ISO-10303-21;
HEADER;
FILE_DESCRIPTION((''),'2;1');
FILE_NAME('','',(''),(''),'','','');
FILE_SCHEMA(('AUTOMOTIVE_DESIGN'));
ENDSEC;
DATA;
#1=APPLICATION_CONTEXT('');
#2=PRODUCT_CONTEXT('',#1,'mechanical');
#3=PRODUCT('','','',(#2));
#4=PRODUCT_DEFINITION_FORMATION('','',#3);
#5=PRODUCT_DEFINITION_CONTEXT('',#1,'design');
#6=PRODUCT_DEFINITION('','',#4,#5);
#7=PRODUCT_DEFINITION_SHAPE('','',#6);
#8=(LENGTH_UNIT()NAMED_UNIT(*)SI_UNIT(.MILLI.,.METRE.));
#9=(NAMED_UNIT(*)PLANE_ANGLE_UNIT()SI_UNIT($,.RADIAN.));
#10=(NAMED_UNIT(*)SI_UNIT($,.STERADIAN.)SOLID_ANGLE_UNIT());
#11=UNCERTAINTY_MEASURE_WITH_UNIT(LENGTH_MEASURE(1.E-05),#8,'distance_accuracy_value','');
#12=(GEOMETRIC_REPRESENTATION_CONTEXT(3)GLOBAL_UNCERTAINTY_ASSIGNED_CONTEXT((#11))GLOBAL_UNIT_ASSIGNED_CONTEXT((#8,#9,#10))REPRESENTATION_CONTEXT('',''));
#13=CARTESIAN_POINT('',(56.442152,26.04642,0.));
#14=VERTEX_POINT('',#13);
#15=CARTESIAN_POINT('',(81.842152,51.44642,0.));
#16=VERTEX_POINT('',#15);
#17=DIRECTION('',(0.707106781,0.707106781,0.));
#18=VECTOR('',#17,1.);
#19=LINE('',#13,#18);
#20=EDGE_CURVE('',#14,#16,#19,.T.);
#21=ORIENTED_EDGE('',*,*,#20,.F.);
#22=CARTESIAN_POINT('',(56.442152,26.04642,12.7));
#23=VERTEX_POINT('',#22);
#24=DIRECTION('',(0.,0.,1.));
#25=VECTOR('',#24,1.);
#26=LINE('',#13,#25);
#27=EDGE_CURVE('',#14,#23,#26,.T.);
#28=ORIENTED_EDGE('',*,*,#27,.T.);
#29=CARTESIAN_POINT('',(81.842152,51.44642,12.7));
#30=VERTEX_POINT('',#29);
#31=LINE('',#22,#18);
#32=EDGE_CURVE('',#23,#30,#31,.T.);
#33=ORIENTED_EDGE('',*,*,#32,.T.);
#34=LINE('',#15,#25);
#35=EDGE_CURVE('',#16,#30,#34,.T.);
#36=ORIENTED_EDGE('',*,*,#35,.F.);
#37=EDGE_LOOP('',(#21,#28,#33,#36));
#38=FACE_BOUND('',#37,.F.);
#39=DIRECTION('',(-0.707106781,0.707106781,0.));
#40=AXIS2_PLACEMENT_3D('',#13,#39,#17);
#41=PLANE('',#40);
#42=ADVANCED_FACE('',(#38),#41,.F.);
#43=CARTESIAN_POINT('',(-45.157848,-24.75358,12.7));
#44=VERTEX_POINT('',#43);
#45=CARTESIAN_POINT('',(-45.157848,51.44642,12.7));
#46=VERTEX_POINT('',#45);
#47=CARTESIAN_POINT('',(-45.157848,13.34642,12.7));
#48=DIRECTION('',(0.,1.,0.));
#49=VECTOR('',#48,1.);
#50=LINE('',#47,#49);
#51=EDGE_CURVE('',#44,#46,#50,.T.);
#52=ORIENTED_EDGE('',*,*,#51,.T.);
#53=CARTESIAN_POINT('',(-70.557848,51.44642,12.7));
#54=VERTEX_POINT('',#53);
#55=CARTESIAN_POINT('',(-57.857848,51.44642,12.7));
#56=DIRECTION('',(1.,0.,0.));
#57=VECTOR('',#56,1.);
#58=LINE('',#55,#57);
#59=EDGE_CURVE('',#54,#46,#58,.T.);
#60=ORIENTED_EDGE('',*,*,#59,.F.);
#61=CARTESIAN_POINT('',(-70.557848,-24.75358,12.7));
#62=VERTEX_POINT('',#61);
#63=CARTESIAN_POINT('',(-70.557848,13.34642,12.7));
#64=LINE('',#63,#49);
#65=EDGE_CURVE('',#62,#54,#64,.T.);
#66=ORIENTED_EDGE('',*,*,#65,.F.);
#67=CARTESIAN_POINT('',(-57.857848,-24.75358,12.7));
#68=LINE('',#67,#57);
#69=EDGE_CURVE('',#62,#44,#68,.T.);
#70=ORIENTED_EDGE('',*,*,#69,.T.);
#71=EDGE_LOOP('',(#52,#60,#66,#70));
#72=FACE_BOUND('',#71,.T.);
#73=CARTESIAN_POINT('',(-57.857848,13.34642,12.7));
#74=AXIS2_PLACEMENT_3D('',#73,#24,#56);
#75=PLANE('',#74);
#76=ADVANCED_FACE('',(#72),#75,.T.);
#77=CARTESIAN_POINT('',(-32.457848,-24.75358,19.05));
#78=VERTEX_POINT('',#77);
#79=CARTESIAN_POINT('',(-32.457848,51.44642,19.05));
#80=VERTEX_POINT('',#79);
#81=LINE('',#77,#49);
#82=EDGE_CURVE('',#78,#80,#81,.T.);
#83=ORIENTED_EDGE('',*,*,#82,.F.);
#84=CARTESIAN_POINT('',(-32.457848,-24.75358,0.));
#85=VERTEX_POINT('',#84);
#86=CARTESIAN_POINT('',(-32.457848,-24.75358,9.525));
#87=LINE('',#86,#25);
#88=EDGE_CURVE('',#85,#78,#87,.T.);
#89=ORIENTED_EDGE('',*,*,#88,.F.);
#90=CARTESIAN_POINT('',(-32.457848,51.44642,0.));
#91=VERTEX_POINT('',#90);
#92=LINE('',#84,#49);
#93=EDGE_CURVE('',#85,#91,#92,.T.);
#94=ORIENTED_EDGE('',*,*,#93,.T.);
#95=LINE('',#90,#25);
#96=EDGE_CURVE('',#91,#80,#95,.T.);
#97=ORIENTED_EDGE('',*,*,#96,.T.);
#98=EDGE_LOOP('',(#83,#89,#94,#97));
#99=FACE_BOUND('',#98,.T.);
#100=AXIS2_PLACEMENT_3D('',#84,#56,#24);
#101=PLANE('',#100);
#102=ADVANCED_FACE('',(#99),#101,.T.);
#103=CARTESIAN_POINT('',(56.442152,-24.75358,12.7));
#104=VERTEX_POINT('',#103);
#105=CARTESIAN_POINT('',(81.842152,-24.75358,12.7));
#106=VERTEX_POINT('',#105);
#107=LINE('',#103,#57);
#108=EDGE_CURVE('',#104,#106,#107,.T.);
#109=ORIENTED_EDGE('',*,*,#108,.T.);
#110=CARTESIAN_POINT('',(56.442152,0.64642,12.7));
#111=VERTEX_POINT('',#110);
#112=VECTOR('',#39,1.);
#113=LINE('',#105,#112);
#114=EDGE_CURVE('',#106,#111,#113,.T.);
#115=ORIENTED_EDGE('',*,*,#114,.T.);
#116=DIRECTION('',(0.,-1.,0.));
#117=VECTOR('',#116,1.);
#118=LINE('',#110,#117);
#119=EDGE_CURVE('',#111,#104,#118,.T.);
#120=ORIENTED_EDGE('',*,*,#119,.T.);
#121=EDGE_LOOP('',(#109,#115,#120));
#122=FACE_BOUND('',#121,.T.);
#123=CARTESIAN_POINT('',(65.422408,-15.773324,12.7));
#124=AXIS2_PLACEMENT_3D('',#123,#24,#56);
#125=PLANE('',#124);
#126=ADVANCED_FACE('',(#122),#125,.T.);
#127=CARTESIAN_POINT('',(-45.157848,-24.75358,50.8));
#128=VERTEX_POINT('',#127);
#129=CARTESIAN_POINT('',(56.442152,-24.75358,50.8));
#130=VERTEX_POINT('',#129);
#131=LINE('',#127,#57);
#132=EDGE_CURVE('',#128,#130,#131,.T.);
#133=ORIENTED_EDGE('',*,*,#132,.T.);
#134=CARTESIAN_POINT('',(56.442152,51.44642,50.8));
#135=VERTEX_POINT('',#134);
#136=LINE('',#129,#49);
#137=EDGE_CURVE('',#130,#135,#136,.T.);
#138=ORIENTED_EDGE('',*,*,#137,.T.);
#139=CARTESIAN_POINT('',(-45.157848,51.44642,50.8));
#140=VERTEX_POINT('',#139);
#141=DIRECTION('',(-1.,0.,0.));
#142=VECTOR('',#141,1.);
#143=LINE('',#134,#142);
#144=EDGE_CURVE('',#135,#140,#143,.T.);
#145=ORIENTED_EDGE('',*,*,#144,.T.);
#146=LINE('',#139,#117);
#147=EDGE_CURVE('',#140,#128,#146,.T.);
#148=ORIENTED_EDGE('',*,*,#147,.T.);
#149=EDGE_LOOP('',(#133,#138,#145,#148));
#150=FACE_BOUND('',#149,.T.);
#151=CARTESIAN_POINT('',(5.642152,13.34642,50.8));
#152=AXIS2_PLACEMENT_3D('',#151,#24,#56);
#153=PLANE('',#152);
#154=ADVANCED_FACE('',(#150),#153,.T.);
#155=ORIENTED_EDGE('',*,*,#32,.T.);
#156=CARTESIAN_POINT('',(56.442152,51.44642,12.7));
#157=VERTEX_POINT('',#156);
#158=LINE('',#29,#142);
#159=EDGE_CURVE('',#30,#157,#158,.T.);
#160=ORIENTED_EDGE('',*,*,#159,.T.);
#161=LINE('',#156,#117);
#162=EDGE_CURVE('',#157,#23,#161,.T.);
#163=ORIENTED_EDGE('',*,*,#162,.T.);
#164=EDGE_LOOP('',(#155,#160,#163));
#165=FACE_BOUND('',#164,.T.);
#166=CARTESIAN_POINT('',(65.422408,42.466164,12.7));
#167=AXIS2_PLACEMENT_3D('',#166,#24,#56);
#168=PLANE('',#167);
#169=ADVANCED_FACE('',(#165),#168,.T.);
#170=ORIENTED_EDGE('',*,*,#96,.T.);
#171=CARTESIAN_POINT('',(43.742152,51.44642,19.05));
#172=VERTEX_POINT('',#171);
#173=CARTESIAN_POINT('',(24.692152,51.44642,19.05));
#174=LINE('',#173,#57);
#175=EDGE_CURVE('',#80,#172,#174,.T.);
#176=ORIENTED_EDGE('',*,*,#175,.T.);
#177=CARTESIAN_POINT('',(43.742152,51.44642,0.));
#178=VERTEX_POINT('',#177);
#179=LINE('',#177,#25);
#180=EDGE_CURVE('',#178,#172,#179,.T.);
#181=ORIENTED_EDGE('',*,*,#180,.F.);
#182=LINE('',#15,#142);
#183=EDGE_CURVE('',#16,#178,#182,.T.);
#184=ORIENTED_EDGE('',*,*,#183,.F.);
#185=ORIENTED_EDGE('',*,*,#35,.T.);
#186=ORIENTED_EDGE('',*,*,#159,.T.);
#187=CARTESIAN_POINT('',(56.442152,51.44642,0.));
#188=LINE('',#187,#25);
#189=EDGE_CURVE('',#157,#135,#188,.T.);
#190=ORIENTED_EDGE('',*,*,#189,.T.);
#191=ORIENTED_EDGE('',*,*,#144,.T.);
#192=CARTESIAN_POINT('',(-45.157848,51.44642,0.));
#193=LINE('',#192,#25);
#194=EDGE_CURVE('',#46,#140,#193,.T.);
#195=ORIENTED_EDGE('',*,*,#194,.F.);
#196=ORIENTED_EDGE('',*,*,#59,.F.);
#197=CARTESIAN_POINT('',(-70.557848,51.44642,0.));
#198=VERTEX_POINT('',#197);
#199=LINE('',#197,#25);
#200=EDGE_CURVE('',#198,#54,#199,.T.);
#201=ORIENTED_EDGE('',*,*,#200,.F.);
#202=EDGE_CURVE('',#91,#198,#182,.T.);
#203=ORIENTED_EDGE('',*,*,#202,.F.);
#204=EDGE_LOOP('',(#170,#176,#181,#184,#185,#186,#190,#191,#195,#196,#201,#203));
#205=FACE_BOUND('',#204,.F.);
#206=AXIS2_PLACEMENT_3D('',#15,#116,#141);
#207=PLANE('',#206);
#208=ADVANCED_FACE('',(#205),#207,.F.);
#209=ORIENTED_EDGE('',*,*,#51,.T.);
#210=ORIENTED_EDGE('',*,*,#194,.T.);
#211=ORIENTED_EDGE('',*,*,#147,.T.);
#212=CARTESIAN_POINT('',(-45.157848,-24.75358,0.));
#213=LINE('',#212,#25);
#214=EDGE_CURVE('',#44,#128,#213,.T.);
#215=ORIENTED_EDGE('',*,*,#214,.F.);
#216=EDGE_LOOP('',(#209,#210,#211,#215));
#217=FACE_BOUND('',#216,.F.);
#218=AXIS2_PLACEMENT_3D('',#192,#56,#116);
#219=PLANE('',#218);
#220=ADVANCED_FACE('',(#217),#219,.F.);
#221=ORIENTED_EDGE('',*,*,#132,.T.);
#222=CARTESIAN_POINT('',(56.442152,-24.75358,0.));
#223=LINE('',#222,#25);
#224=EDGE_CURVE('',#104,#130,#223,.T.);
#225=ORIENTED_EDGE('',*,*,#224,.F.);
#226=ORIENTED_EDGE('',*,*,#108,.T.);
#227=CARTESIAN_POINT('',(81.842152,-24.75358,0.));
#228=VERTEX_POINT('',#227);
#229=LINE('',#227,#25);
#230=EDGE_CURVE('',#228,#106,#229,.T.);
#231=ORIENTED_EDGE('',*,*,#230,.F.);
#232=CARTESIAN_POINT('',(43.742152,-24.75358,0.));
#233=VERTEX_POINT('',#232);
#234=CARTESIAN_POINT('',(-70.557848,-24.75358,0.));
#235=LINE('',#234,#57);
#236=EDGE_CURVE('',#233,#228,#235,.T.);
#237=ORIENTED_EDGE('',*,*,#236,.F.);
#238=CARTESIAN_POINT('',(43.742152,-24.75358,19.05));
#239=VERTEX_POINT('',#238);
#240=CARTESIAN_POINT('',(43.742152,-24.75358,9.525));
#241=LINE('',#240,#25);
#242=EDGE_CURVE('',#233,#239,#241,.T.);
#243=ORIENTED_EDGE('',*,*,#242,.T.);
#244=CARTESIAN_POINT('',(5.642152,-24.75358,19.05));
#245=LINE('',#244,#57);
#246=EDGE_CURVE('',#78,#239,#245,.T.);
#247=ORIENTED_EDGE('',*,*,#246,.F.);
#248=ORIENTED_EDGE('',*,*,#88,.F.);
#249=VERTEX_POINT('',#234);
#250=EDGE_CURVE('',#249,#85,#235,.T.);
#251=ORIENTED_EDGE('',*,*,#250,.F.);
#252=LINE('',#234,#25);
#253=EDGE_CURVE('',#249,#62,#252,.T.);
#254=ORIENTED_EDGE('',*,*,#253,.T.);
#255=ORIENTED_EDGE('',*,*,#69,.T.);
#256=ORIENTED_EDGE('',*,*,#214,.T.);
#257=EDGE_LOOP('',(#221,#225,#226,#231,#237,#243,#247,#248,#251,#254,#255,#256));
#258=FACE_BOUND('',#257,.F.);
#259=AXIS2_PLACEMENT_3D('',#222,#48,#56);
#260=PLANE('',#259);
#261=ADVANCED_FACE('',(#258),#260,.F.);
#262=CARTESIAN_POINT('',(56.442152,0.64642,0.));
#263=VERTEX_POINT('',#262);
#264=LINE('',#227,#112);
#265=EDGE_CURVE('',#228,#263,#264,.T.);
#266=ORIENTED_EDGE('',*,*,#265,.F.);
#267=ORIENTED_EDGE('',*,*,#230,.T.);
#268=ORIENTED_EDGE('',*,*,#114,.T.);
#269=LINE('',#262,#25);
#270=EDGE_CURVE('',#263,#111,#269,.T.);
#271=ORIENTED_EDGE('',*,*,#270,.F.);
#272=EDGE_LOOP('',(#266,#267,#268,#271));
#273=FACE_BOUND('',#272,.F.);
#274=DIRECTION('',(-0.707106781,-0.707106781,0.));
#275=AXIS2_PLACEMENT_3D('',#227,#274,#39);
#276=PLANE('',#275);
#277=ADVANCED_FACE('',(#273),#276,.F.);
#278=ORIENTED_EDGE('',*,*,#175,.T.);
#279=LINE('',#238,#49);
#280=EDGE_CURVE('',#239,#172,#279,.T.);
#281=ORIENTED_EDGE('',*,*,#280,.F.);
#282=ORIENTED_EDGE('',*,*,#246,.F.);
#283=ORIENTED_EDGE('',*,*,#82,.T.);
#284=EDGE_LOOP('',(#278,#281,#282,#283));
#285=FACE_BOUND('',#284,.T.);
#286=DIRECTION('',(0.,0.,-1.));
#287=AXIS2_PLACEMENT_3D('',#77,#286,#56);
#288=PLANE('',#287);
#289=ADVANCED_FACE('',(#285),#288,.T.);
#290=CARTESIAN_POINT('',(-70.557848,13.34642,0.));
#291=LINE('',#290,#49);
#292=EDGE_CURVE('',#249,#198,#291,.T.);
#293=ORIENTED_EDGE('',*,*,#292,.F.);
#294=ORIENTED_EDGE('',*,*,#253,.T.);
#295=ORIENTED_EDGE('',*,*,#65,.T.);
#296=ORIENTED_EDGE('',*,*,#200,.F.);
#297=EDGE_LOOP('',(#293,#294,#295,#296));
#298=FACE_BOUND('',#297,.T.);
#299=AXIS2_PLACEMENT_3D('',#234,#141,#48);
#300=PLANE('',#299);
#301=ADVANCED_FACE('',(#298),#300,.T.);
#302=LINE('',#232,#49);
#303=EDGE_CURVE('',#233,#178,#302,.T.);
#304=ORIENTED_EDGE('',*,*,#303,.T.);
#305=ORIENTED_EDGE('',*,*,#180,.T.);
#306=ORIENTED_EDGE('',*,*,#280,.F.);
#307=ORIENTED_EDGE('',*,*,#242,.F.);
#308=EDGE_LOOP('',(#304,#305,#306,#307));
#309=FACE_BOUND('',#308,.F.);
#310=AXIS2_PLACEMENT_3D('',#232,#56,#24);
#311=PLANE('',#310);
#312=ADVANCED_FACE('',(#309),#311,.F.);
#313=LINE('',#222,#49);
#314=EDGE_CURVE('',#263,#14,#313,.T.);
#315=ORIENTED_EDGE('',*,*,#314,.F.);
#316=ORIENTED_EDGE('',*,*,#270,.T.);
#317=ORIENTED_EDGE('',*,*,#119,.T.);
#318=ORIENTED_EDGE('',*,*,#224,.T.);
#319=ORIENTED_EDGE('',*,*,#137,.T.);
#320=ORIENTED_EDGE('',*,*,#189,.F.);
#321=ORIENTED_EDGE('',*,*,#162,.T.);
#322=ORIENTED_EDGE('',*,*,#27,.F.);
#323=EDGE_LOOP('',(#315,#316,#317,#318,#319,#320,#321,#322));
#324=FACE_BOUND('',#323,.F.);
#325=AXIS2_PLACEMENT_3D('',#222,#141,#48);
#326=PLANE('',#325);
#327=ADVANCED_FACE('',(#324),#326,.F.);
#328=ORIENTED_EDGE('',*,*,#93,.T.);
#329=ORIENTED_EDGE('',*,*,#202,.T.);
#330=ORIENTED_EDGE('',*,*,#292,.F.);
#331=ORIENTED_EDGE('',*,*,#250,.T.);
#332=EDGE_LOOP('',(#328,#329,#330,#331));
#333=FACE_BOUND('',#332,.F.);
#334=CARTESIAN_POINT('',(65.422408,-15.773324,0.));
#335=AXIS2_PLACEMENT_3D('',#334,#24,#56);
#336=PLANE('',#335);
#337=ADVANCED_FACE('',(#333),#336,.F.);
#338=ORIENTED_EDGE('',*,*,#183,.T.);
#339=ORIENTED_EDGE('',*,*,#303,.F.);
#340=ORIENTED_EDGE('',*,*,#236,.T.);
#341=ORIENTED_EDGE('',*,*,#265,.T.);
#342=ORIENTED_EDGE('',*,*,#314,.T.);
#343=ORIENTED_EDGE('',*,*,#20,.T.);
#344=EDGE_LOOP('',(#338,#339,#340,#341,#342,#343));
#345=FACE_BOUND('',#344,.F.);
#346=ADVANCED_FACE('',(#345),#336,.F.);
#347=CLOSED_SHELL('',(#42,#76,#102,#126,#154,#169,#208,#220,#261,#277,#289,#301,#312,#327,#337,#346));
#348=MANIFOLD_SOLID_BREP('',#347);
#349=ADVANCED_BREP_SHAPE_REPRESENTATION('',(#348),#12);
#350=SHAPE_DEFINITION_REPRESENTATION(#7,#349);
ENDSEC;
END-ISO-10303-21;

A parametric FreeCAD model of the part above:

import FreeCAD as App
import Part
import Sketcher
from FreeCAD import Vector
Q = App.Units.Quantity


def add_polygon(sketch, points):
    """Adds a closed chain of lines whose ends are joined by coincident constraints."""
    first, n = sketch.GeometryCount, len(points)
    for a, b in zip(points, points[1:] + points[:1]):
        sketch.addGeometry(Part.LineSegment(App.Vector(*a, 0), App.Vector(*b, 0)), False)
    for i in range(n):
        sketch.addConstraint(Sketcher.Constraint("Coincident", first + i, 2, first + (i + 1) % n, 1))

doc = App.newDocument("Part")
body = doc.addObject("PartDesign::Body", "Body")

# Sketch on XY plane
sketch1 = body.newObject("Sketcher::SketchObject", "Sketch")
sketch1.AttachmentSupport = (doc.getObject("XY_Plane"), [""])
sketch1.MapMode = "FlatFace"
add_polygon(sketch1, [(-71, 51), (-71, -25), (-45, -25), (-45, 51)])  # lines 0-3
sketch1.addConstraint(Sketcher.Constraint("Vertical", 0))
sketch1.addConstraint(Sketcher.Constraint("Horizontal", 1))
sketch1.addConstraint(Sketcher.Constraint("Vertical", 2))
sketch1.addConstraint(Sketcher.Constraint("Horizontal", 3))
sketch1.addConstraint(Sketcher.Constraint("DistanceX", 1, 1, 1, 2, Q("1 in")))
sketch1.addConstraint(Sketcher.Constraint("DistanceY", 0, 2, 0, 1, Q("3 in")))
sketch1.addConstraint(Sketcher.Constraint("DistanceX", 0, 2, -1, 1, 70.557848))
sketch1.addConstraint(Sketcher.Constraint("DistanceY", 0, 2, -1, 1, 24.75358))
pad1 = body.newObject("PartDesign::Pad", "Pad")
pad1.Profile = sketch1
pad1.Length = Q("0.5 in")

# Sketch on XY plane
sketch2 = body.newObject("Sketcher::SketchObject", "Sketch001")
sketch2.AttachmentSupport = (doc.getObject("XY_Plane"), [""])
sketch2.MapMode = "FlatFace"
add_polygon(sketch2, [(56, 51), (-45, 51), (-45, -25), (56, -25)])  # lines 0-3
sketch2.addConstraint(Sketcher.Constraint("Horizontal", 0))
sketch2.addConstraint(Sketcher.Constraint("Vertical", 1))
sketch2.addConstraint(Sketcher.Constraint("Horizontal", 2))
sketch2.addConstraint(Sketcher.Constraint("Vertical", 3))
sketch2.addConstraint(Sketcher.Constraint("DistanceX", 0, 2, 0, 1, Q("4 in")))
sketch2.addConstraint(Sketcher.Constraint("DistanceY", 1, 2, 1, 1, Q("3 in")))
sketch2.addConstraint(Sketcher.Constraint("DistanceY", -1, 1, 0, 2, 51.44642))
sketch2.addConstraint(Sketcher.Constraint("DistanceX", 0, 2, -1, 1, 45.157848))
pad2 = body.newObject("PartDesign::Pad", "Pad001")
pad2.Profile = sketch2
pad2.Length = Q("2 in")

# Sketch on XY plane
sketch3 = body.newObject("Sketcher::SketchObject", "Sketch002")
sketch3.AttachmentSupport = (doc.getObject("XY_Plane"), [""])
sketch3.MapMode = "FlatFace"
add_polygon(sketch3, [(82, 51), (56, 51), (56, 26)])  # lines 0-2
sketch3.addConstraint(Sketcher.Constraint("Horizontal", 0))
sketch3.addConstraint(Sketcher.Constraint("Vertical", 1))
sketch3.addConstraint(Sketcher.Constraint("Equal", 0, 1))
sketch3.addConstraint(Sketcher.Constraint("DistanceX", 0, 2, 0, 1, Q("1 in")))
sketch3.addConstraint(Sketcher.Constraint("DistanceY", -1, 1, 0, 2, 51.44642))
sketch3.addConstraint(Sketcher.Constraint("DistanceX", -1, 1, 2, 2, 81.842152))
pad3 = body.newObject("PartDesign::Pad", "Pad002")
pad3.Profile = sketch3
pad3.Length = Q("0.5 in")

# Sketch on XY plane
sketch4 = body.newObject("Sketcher::SketchObject", "Sketch003")
sketch4.AttachmentSupport = (doc.getObject("XY_Plane"), [""])
sketch4.MapMode = "FlatFace"
add_polygon(sketch4, [(56, 1), (56, -25), (82, -25)])  # lines 0-2
sketch4.addConstraint(Sketcher.Constraint("Vertical", 0))
sketch4.addConstraint(Sketcher.Constraint("Horizontal", 1))
sketch4.addConstraint(Sketcher.Constraint("Equal", 1, 0))
sketch4.addConstraint(Sketcher.Constraint("DistanceX", 1, 1, 1, 2, Q("1 in")))
sketch4.addConstraint(Sketcher.Constraint("DistanceY", 0, 2, -1, 1, 24.75358))
sketch4.addConstraint(Sketcher.Constraint("DistanceX", -1, 1, 1, 2, 81.842152))
pad4 = body.newObject("PartDesign::Pad", "Pad003")
pad4.Profile = sketch4
pad4.Length = Q("0.5 in")

# Sketch on XZ plane
sketch5 = body.newObject("Sketcher::SketchObject", "Sketch004")
sketch5.AttachmentSupport = (doc.getObject("XZ_Plane"), [""])
sketch5.MapMode = "FlatFace"
sketch5.AttachmentOffset = App.Placement(Vector(0, 0, 24.75358), App.Rotation())
add_polygon(sketch5, [(-32, 19), (-32, 0), (44, 0), (44, 19)])  # lines 0-3
sketch5.addConstraint(Sketcher.Constraint("Vertical", 0))
sketch5.addConstraint(Sketcher.Constraint("Horizontal", 1))
sketch5.addConstraint(Sketcher.Constraint("Vertical", 2))
sketch5.addConstraint(Sketcher.Constraint("Horizontal", 3))
sketch5.addConstraint(Sketcher.Constraint("PointOnObject", 0, 2, -1))
sketch5.addConstraint(Sketcher.Constraint("DistanceX", 1, 1, 1, 2, Q("3 in")))
sketch5.addConstraint(Sketcher.Constraint("DistanceY", 0, 2, 0, 1, Q("0.75 in")))
sketch5.addConstraint(Sketcher.Constraint("DistanceX", -1, 1, 1, 2, 43.742152))
pocket1 = body.newObject("PartDesign::Pocket", "Pocket")
pocket1.Profile = sketch5
pocket1.Type = "ThroughAll"

doc.recompute()
